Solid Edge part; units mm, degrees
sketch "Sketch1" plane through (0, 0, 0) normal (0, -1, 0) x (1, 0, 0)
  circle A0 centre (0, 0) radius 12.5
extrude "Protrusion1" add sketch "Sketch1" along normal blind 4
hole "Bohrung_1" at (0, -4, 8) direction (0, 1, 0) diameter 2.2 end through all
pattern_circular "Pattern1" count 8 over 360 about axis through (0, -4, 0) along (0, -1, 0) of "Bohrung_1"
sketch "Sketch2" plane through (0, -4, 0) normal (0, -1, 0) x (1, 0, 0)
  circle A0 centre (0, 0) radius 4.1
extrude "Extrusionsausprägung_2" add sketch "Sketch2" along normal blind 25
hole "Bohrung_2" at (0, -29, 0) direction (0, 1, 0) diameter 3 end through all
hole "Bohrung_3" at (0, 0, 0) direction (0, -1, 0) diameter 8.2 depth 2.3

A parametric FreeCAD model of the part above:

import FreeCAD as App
import Part
import Sketcher
from FreeCAD import Vector

doc = App.newDocument("Part")
params = doc.addObject("Spreadsheet::Sheet", "Params")
for row, (alias, value) in enumerate([
    ("sketch1_diameter", "25 mm"),
    ("pad1_length", "4 mm"),
    ("sketch2_diameter", "2.2 mm"),
    ("hole_diameter", "2.2 mm"),
    ("sketch3_diameter", "8.2 mm"),
    ("pad2_length", "25 mm"),
    ("sketch4_diameter", "3 mm"),
    ("hole2_diameter", "3 mm"),
    ("sketch5_diameter", "8.2 mm"),
    ("hole3_diameter", "8.2 mm"),
    ("hole3_depth", "2.3 mm"),
], start=1):
    params.set(f"A{row}", alias)
    params.set(f"B{row}", "=" + value)
    params.setAlias(f"B{row}", alias)

body = doc.addObject("PartDesign::Body", "Body")

sketch1 = body.newObject("Sketcher::SketchObject", "Sketch")
sketch1.AttachmentSupport = (doc.getObject("XZ_Plane"), [""])
sketch1.MapMode = "FlatFace"
sketch1.addGeometry(Part.Circle(Vector(0, 0, 0), Vector(0, 0, 1), 12), False)
sketch1.addConstraint(Sketcher.Constraint("Coincident", 0, 3, -1, 1))
sketch1.addConstraint(Sketcher.Constraint("Diameter", 0, 25.0))
sketch1.setExpression("Constraints[1]", "Params.sketch1_diameter")
pad1 = body.newObject("PartDesign::Pad", "Pad")
pad1.Profile = sketch1
pad1.setExpression("Length", "Params.pad1_length")

sketch2 = body.newObject("Sketcher::SketchObject", "Sketch001")
sketch2.AttachmentSupport = (doc.getObject("XZ_Plane"), [""])
sketch2.MapMode = "FlatFace"
sketch2.AttachmentOffset = App.Placement(Vector(0, 0, 4), App.Rotation())
sketch2.addGeometry(Part.Circle(Vector(0, 8, 0), Vector(0, 0, 1), 1.1), False)
sketch2.addConstraint(Sketcher.Constraint("PointOnObject", 0, 3, -2))
sketch2.addConstraint(Sketcher.Constraint("Diameter", 0, 2.2))
sketch2.addConstraint(Sketcher.Constraint("DistanceY", -1, 1, 0, 3, 8.0))
sketch2.setExpression("Constraints[1]", "Params.sketch2_diameter")
doc.recompute()
hole = body.newObject("PartDesign::Hole", "Hole")
hole.Profile = sketch2
hole.ThreadType = "None"
hole.setExpression("Diameter", "Params.hole_diameter")
hole.DepthType = "ThroughAll"
doc.recompute()

polarpattern = body.newObject("PartDesign::PolarPattern", "PolarPattern")
polarpattern.Originals = [hole]
polarpattern.Axis = (doc.getObject("Y_Axis"), [""])
polarpattern.Angle = 360
polarpattern.Occurrences = 8
body.Tip = polarpattern

sketch3 = body.newObject("Sketcher::SketchObject", "Sketch002")
sketch3.AttachmentSupport = (doc.getObject("XZ_Plane"), [""])
sketch3.MapMode = "FlatFace"
sketch3.AttachmentOffset = App.Placement(Vector(0, 0, 4), App.Rotation())
sketch3.addGeometry(Part.Circle(Vector(0, 0, 0), Vector(0, 0, 1), 4.1), False)
sketch3.addConstraint(Sketcher.Constraint("Coincident", 0, 3, -1, 1))
sketch3.addConstraint(Sketcher.Constraint("Diameter", 0, 8.2))
sketch3.setExpression("Constraints[1]", "Params.sketch3_diameter")
pad2 = body.newObject("PartDesign::Pad", "Pad001")
pad2.Profile = sketch3
pad2.setExpression("Length", "Params.pad2_length")

sketch4 = body.newObject("Sketcher::SketchObject", "Sketch003")
sketch4.AttachmentSupport = (doc.getObject("XZ_Plane"), [""])
sketch4.MapMode = "FlatFace"
sketch4.AttachmentOffset = App.Placement(Vector(0, 0, 29), App.Rotation())
sketch4.addGeometry(Part.Circle(Vector(0, 0, 0), Vector(0, 0, 1), 1.5), False)
sketch4.addConstraint(Sketcher.Constraint("Coincident", 0, 3, -1, 1))
sketch4.addConstraint(Sketcher.Constraint("Diameter", 0, 3.0))
sketch4.setExpression("Constraints[1]", "Params.sketch4_diameter")
doc.recompute()
hole2 = body.newObject("PartDesign::Hole", "Hole001")
hole2.Profile = sketch4
hole2.ThreadType = "None"
hole2.setExpression("Diameter", "Params.hole2_diameter")
hole2.DepthType = "ThroughAll"

sketch5 = body.newObject("Sketcher::SketchObject", "Sketch004")
sketch5.AttachmentSupport = (doc.getObject("XZ_Plane"), [""])
sketch5.MapMode = "FlatFace"
sketch5.addGeometry(Part.Circle(Vector(0, 0, 0), Vector(0, 0, 1), 4.1), False)
sketch5.addConstraint(Sketcher.Constraint("Coincident", 0, 3, -1, 1))
sketch5.addConstraint(Sketcher.Constraint("Diameter", 0, 8.2))
sketch5.setExpression("Constraints[1]", "Params.sketch5_diameter")
doc.recompute()
hole3 = body.newObject("PartDesign::Hole", "Hole002")
hole3.Profile = sketch5
hole3.ThreadType = "None"
hole3.setExpression("Diameter", "Params.hole3_diameter")
hole3.DepthType = "Dimension"
hole3.setExpression("Depth", "Params.hole3_depth")
hole3.DrillPoint = "Flat"
hole3.Reversed = True

doc.recompute()
